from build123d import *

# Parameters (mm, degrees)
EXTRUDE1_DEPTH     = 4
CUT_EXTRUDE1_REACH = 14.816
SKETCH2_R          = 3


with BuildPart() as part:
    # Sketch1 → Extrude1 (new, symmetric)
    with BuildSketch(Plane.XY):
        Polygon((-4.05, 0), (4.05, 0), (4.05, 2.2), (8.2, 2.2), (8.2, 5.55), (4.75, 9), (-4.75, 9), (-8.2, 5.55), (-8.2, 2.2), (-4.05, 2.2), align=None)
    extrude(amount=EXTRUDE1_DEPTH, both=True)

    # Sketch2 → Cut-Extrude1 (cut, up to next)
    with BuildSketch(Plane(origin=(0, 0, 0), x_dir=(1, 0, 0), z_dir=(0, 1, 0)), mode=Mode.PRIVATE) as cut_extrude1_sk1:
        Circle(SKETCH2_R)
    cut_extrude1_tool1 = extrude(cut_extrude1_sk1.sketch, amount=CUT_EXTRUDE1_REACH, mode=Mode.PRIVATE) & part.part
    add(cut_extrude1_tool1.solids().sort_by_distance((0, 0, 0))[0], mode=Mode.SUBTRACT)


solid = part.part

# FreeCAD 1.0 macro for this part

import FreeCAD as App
import Part
import Sketcher


def add_polygon(sketch, points):
    """Adds a closed chain of lines whose ends are joined by coincident constraints."""
    first, n = sketch.GeometryCount, len(points)
    for a, b in zip(points, points[1:] + points[:1]):
        sketch.addGeometry(Part.LineSegment(App.Vector(*a, 0), App.Vector(*b, 0)), False)
    for i in range(n):
        sketch.addConstraint(Sketcher.Constraint("Coincident", first + i, 2, first + (i + 1) % n, 1))

doc = App.newDocument("Part")
body = doc.addObject("PartDesign::Body", "Body")

# Sketch on XY plane
sketch1 = doc.addObject("Sketcher::SketchObject", "Sketch")
body.addObject(sketch1)
sketch1.AttachmentSupport = (doc.XY_Plane, [""])
sketch1.MapMode = "FlatFace"
add_polygon(sketch1, [(-4, 0), (4, 0), (4, 2.2), (8.2, 2.2), (8.2, 5.5), (4.8, 9), (-4.8, 9), (-8.2, 5.5), (-8.2, 2.2), (-4, 2.2)])  # lines 0-9
sketch1.addConstraint([
    Sketcher.Constraint("Horizontal", 0),
    Sketcher.Constraint("Vertical", 1),
    Sketcher.Constraint("Horizontal", 2),
    Sketcher.Constraint("Vertical", 3),
    Sketcher.Constraint("Horizontal", 5),
    Sketcher.Constraint("Vertical", 7),
    Sketcher.Constraint("Horizontal", 8),
    Sketcher.Constraint("Vertical", 9),
    Sketcher.Constraint("Symmetric", 0, 2, 9, 2, -1, 1),
    Sketcher.Constraint("Symmetric", 3, 2, 6, 2, -2),
    Sketcher.Constraint("Perpendicular", 4, 6),
    Sketcher.Constraint("Horizontal", 2, 2, 7, 2),
    Sketcher.Constraint("Equal", 4, 6),
    Sketcher.Constraint("DistanceX", 0, 1, 0, 2, 8.1),
    Sketcher.Constraint("DistanceX", 5, 2, 5, 1, 9.5),
    Sketcher.Constraint("DistanceY", 1, 1, 1, 2, 2.2),
    Sketcher.Constraint("DistanceY", -1, 1, 4, 2, 9.0),
    Sketcher.Constraint("DistanceX", 2, 1, 2, 2, 4.15),
])
pad1 = doc.addObject("PartDesign::Pad", "Pad")
body.addObject(pad1)
pad1.Profile = sketch1
pad1.Length = 8
pad1.Midplane = True

# Sketch on XZ plane
sketch2 = doc.addObject("Sketcher::SketchObject", "Sketch001")
body.addObject(sketch2)
sketch2.AttachmentSupport = (doc.XZ_Plane, [""])
sketch2.MapMode = "FlatFace"
sketch2.addGeometry(Part.Circle(App.Vector(0, 0, 0), App.Vector(0, 0, 1), 3), False)
sketch2.addConstraint([
    Sketcher.Constraint("Coincident", 0, 3, -1, 1),
    Sketcher.Constraint("Diameter", 0, 6.0),
])
pocket1 = doc.addObject("PartDesign::Pocket", "Pocket")
body.addObject(pocket1)
pocket1.Profile = sketch2
pocket1.Type = "UpToFirst"

doc.recompute()
